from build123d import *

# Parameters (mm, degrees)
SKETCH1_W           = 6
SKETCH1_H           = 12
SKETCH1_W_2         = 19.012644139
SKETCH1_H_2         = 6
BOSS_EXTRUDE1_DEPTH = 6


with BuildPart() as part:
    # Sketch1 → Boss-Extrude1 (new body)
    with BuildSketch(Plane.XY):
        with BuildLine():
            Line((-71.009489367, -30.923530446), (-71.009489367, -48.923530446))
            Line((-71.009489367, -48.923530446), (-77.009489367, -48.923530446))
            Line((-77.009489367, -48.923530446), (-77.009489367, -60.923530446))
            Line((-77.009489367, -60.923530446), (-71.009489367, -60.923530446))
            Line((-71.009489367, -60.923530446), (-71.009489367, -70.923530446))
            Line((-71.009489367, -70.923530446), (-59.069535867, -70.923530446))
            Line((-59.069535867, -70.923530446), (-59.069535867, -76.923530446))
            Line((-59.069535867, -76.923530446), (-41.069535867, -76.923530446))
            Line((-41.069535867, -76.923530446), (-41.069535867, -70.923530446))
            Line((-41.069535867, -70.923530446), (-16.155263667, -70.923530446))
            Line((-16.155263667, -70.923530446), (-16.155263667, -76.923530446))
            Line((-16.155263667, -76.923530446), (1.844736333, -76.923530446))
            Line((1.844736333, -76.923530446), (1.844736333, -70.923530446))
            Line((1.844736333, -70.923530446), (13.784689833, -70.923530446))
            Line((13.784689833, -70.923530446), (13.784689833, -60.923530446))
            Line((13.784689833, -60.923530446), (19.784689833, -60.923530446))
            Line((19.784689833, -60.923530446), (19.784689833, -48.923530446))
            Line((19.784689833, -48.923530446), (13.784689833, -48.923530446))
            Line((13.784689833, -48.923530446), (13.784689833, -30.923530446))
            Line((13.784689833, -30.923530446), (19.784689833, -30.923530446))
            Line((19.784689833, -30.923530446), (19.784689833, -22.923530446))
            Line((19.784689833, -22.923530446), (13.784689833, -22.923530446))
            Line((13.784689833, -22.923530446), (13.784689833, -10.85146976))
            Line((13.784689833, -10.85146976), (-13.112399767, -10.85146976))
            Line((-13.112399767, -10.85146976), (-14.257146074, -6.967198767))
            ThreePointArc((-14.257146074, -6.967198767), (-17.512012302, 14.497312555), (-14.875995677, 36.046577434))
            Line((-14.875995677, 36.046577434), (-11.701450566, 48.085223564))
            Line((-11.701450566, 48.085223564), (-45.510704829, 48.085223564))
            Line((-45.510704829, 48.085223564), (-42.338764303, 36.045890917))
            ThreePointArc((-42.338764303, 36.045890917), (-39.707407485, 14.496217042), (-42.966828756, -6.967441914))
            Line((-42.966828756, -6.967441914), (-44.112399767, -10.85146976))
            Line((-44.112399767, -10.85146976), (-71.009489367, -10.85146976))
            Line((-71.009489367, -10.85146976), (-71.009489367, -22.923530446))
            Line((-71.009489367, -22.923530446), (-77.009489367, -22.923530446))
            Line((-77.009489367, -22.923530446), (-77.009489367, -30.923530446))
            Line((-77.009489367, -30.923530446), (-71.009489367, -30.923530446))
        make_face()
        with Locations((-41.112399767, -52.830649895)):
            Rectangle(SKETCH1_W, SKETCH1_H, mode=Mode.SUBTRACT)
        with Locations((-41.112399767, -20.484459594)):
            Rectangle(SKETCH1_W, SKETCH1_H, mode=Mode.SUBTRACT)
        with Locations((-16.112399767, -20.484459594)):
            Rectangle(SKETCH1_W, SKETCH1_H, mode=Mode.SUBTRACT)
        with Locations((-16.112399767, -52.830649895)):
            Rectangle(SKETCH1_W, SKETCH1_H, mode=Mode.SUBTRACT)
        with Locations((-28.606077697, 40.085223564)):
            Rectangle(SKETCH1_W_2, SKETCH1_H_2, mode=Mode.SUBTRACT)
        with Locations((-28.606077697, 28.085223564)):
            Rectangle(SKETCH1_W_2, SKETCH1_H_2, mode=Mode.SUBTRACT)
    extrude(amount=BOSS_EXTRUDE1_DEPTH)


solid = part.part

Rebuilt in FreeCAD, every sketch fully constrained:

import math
import FreeCAD as App
import Part
import Sketcher
Q = App.Units.Quantity

doc = App.newDocument("Part")
body = doc.addObject("PartDesign::Body", "Body")

# Sketch on XY plane
sketch1 = body.newObject("Sketcher::SketchObject", "Sketch")
sketch1.AttachmentSupport = (doc.getObject("XY_Plane"), [""])
sketch1.MapMode = "FlatFace"
sketch1.addGeometry(Part.LineSegment(App.Vector(-71, -30.9, 0), App.Vector(-71, -48.9, 0)), False)
sketch1.addGeometry(Part.LineSegment(App.Vector(-71, -48.9, 0), App.Vector(-77, -48.9, 0)), False)
sketch1.addGeometry(Part.LineSegment(App.Vector(-77, -48.9, 0), App.Vector(-77, -60.9, 0)), False)
sketch1.addGeometry(Part.LineSegment(App.Vector(-77, -60.9, 0), App.Vector(-71, -60.9, 0)), False)
sketch1.addGeometry(Part.LineSegment(App.Vector(-71, -60.9, 0), App.Vector(-71, -70.9, 0)), False)
sketch1.addGeometry(Part.LineSegment(App.Vector(-71, -70.9, 0), App.Vector(-59.1, -70.9, 0)), False)
sketch1.addGeometry(Part.LineSegment(App.Vector(-59.1, -70.9, 0), App.Vector(-59.1, -76.9, 0)), False)
sketch1.addGeometry(Part.LineSegment(App.Vector(-59.1, -76.9, 0), App.Vector(-41.1, -76.9, 0)), False)
sketch1.addGeometry(Part.LineSegment(App.Vector(-41.1, -76.9, 0), App.Vector(-41.1, -70.9, 0)), False)
sketch1.addGeometry(Part.LineSegment(App.Vector(-41.1, -70.9, 0), App.Vector(-16.2, -70.9, 0)), False)
sketch1.addGeometry(Part.LineSegment(App.Vector(-16.2, -70.9, 0), App.Vector(-16.2, -76.9, 0)), False)
sketch1.addGeometry(Part.LineSegment(App.Vector(-16.2, -76.9, 0), App.Vector(1.8, -76.9, 0)), False)
sketch1.addGeometry(Part.LineSegment(App.Vector(1.8, -76.9, 0), App.Vector(1.8, -70.9, 0)), False)
sketch1.addGeometry(Part.LineSegment(App.Vector(1.8, -70.9, 0), App.Vector(13.8, -70.9, 0)), False)
sketch1.addGeometry(Part.LineSegment(App.Vector(13.8, -70.9, 0), App.Vector(13.8, -60.9, 0)), False)
sketch1.addGeometry(Part.LineSegment(App.Vector(13.8, -60.9, 0), App.Vector(19.8, -60.9, 0)), False)
sketch1.addGeometry(Part.LineSegment(App.Vector(19.8, -60.9, 0), App.Vector(19.8, -48.9, 0)), False)
sketch1.addGeometry(Part.LineSegment(App.Vector(19.8, -48.9, 0), App.Vector(13.8, -48.9, 0)), False)
sketch1.addGeometry(Part.LineSegment(App.Vector(13.8, -48.9, 0), App.Vector(13.8, -30.9, 0)), False)
sketch1.addGeometry(Part.LineSegment(App.Vector(13.8, -30.9, 0), App.Vector(19.8, -30.9, 0)), False)
sketch1.addGeometry(Part.LineSegment(App.Vector(19.8, -30.9, 0), App.Vector(19.8, -22.9, 0)), False)
sketch1.addGeometry(Part.LineSegment(App.Vector(19.8, -22.9, 0), App.Vector(13.8, -22.9, 0)), False)
sketch1.addGeometry(Part.LineSegment(App.Vector(13.8, -22.9, 0), App.Vector(13.8, -10.9, 0)), False)
sketch1.addGeometry(Part.LineSegment(App.Vector(13.8, -10.9, 0), App.Vector(-13.1, -10.9, 0)), False)
sketch1.addGeometry(Part.LineSegment(App.Vector(-13.1, -10.9, 0), App.Vector(-14.3, -7, 0)), False)
sketch1.addGeometry(Part.ArcOfCircle(Part.Circle(App.Vector(62.5, 15.6, 0), App.Vector(0, 0, 1), 80), math.radians(165), math.radians(196)), False)
sketch1.addGeometry(Part.LineSegment(App.Vector(-14.9, 36, 0), App.Vector(-11.7, 48.1, 0)), False)
sketch1.addGeometry(Part.LineSegment(App.Vector(-11.7, 48.1, 0), App.Vector(-45.5, 48.1, 0)), False)
sketch1.addGeometry(Part.LineSegment(App.Vector(-45.5, 48.1, 0), App.Vector(-42.3, 36, 0)), False)
sketch1.addGeometry(Part.ArcOfCircle(Part.Circle(App.Vector(-119.7, 15.7, 0), App.Vector(0, 0, 1), 80), math.radians(-16), math.radians(15)), False)
sketch1.addGeometry(Part.LineSegment(App.Vector(-43, -7, 0), App.Vector(-44.1, -10.9, 0)), False)
sketch1.addGeometry(Part.LineSegment(App.Vector(-44.1, -10.9, 0), App.Vector(-71, -10.9, 0)), False)
sketch1.addGeometry(Part.LineSegment(App.Vector(-71, -10.9, 0), App.Vector(-71, -22.9, 0)), False)
sketch1.addGeometry(Part.LineSegment(App.Vector(-71, -22.9, 0), App.Vector(-77, -22.9, 0)), False)
sketch1.addGeometry(Part.LineSegment(App.Vector(-77, -22.9, 0), App.Vector(-77, -30.9, 0)), False)
sketch1.addGeometry(Part.LineSegment(App.Vector(-77, -30.9, 0), App.Vector(-71, -30.9, 0)), False)
sketch1.addGeometry(Part.LineSegment(App.Vector(-38.1, -58.8, 0), App.Vector(-44.1, -58.8, 0)), False)
sketch1.addGeometry(Part.LineSegment(App.Vector(-44.1, -58.8, 0), App.Vector(-44.1, -46.8, 0)), False)
sketch1.addGeometry(Part.LineSegment(App.Vector(-44.1, -46.8, 0), App.Vector(-38.1, -46.8, 0)), False)
sketch1.addGeometry(Part.LineSegment(App.Vector(-38.1, -46.8, 0), App.Vector(-38.1, -58.8, 0)), False)
sketch1.addGeometry(Part.LineSegment(App.Vector(-38.1, -26.5, 0), App.Vector(-44.1, -26.5, 0)), False)
sketch1.addGeometry(Part.LineSegment(App.Vector(-44.1, -26.5, 0), App.Vector(-44.1, -14.5, 0)), False)
sketch1.addGeometry(Part.LineSegment(App.Vector(-44.1, -14.5, 0), App.Vector(-38.1, -14.5, 0)), False)
sketch1.addGeometry(Part.LineSegment(App.Vector(-38.1, -14.5, 0), App.Vector(-38.1, -26.5, 0)), False)
sketch1.addGeometry(Part.LineSegment(App.Vector(-13.1, -58.8, 0), App.Vector(-19.1, -58.8, 0)), False)
sketch1.addGeometry(Part.LineSegment(App.Vector(-19.1, -58.8, 0), App.Vector(-19.1, -46.8, 0)), False)
sketch1.addGeometry(Part.LineSegment(App.Vector(-19.1, -46.8, 0), App.Vector(-13.1, -46.8, 0)), False)
sketch1.addGeometry(Part.LineSegment(App.Vector(-13.1, -46.8, 0), App.Vector(-13.1, -58.8, 0)), False)
sketch1.addGeometry(Part.LineSegment(App.Vector(-13.1, -26.5, 0), App.Vector(-19.1, -26.5, 0)), False)
sketch1.addGeometry(Part.LineSegment(App.Vector(-19.1, -26.5, 0), App.Vector(-19.1, -14.5, 0)), False)
sketch1.addGeometry(Part.LineSegment(App.Vector(-19.1, -14.5, 0), App.Vector(-13.1, -14.5, 0)), False)
sketch1.addGeometry(Part.LineSegment(App.Vector(-13.1, -14.5, 0), App.Vector(-13.1, -26.5, 0)), False)
sketch1.addGeometry(Part.LineSegment(App.Vector(-19.1, 25.1, 0), App.Vector(-38.1, 25.1, 0)), False)
sketch1.addGeometry(Part.LineSegment(App.Vector(-38.1, 25.1, 0), App.Vector(-38.1, 31.1, 0)), False)
sketch1.addGeometry(Part.LineSegment(App.Vector(-38.1, 31.1, 0), App.Vector(-19.1, 31.1, 0)), False)
sketch1.addGeometry(Part.LineSegment(App.Vector(-19.1, 31.1, 0), App.Vector(-19.1, 25.1, 0)), False)
sketch1.addGeometry(Part.LineSegment(App.Vector(-19.1, 37.1, 0), App.Vector(-38.1, 37.1, 0)), False)
sketch1.addGeometry(Part.LineSegment(App.Vector(-38.1, 37.1, 0), App.Vector(-38.1, 43.1, 0)), False)
sketch1.addGeometry(Part.LineSegment(App.Vector(-38.1, 43.1, 0), App.Vector(-19.1, 43.1, 0)), False)
sketch1.addGeometry(Part.LineSegment(App.Vector(-19.1, 43.1, 0), App.Vector(-19.1, 37.1, 0)), False)
sketch1.addConstraint(Sketcher.Constraint("Coincident", 0, 2, 1, 1))
sketch1.addConstraint(Sketcher.Constraint("Coincident", 1, 2, 2, 1))
sketch1.addConstraint(Sketcher.Constraint("Coincident", 2, 2, 3, 1))
sketch1.addConstraint(Sketcher.Constraint("Coincident", 3, 2, 4, 1))
sketch1.addConstraint(Sketcher.Constraint("Coincident", 4, 2, 5, 1))
sketch1.addConstraint(Sketcher.Constraint("Coincident", 5, 2, 6, 1))
sketch1.addConstraint(Sketcher.Constraint("Coincident", 6, 2, 7, 1))
sketch1.addConstraint(Sketcher.Constraint("Coincident", 7, 2, 8, 1))
sketch1.addConstraint(Sketcher.Constraint("Coincident", 8, 2, 9, 1))
sketch1.addConstraint(Sketcher.Constraint("Coincident", 9, 2, 10, 1))
sketch1.addConstraint(Sketcher.Constraint("Coincident", 10, 2, 11, 1))
sketch1.addConstraint(Sketcher.Constraint("Coincident", 11, 2, 12, 1))
sketch1.addConstraint(Sketcher.Constraint("Coincident", 12, 2, 13, 1))
sketch1.addConstraint(Sketcher.Constraint("Coincident", 13, 2, 14, 1))
sketch1.addConstraint(Sketcher.Constraint("Coincident", 14, 2, 15, 1))
sketch1.addConstraint(Sketcher.Constraint("Coincident", 15, 2, 16, 1))
sketch1.addConstraint(Sketcher.Constraint("Coincident", 16, 2, 17, 1))
sketch1.addConstraint(Sketcher.Constraint("Coincident", 17, 2, 18, 1))
sketch1.addConstraint(Sketcher.Constraint("Coincident", 18, 2, 19, 1))
sketch1.addConstraint(Sketcher.Constraint("Coincident", 19, 2, 20, 1))
sketch1.addConstraint(Sketcher.Constraint("Coincident", 20, 2, 21, 1))
sketch1.addConstraint(Sketcher.Constraint("Coincident", 21, 2, 22, 1))
sketch1.addConstraint(Sketcher.Constraint("Coincident", 22, 2, 23, 1))
sketch1.addConstraint(Sketcher.Constraint("Coincident", 23, 2, 24, 1))
sketch1.addConstraint(Sketcher.Constraint("Tangent", 24, 2, 25, 2))
sketch1.addConstraint(Sketcher.Constraint("Tangent", 25, 1, 26, 1))
sketch1.addConstraint(Sketcher.Constraint("Coincident", 26, 2, 27, 1))
sketch1.addConstraint(Sketcher.Constraint("Coincident", 27, 2, 28, 1))
sketch1.addConstraint(Sketcher.Constraint("Tangent", 28, 2, 29, 2))
sketch1.addConstraint(Sketcher.Constraint("Tangent", 29, 1, 30, 1))
sketch1.addConstraint(Sketcher.Constraint("Coincident", 30, 2, 31, 1))
sketch1.addConstraint(Sketcher.Constraint("Coincident", 31, 2, 32, 1))
sketch1.addConstraint(Sketcher.Constraint("Coincident", 32, 2, 33, 1))
sketch1.addConstraint(Sketcher.Constraint("Coincident", 33, 2, 34, 1))
sketch1.addConstraint(Sketcher.Constraint("Coincident", 34, 2, 35, 1))
sketch1.addConstraint(Sketcher.Constraint("Coincident", 35, 2, 0, 1))
sketch1.addConstraint(Sketcher.Constraint("Coincident", 36, 2, 37, 1))
sketch1.addConstraint(Sketcher.Constraint("Coincident", 37, 2, 38, 1))
sketch1.addConstraint(Sketcher.Constraint("Coincident", 38, 2, 39, 1))
sketch1.addConstraint(Sketcher.Constraint("Coincident", 39, 2, 36, 1))
sketch1.addConstraint(Sketcher.Constraint("Coincident", 40, 2, 41, 1))
sketch1.addConstraint(Sketcher.Constraint("Coincident", 41, 2, 42, 1))
sketch1.addConstraint(Sketcher.Constraint("Coincident", 42, 2, 43, 1))
sketch1.addConstraint(Sketcher.Constraint("Coincident", 43, 2, 40, 1))
sketch1.addConstraint(Sketcher.Constraint("Coincident", 44, 2, 45, 1))
sketch1.addConstraint(Sketcher.Constraint("Coincident", 45, 2, 46, 1))
sketch1.addConstraint(Sketcher.Constraint("Coincident", 46, 2, 47, 1))
sketch1.addConstraint(Sketcher.Constraint("Coincident", 47, 2, 44, 1))
sketch1.addConstraint(Sketcher.Constraint("Coincident", 48, 2, 49, 1))
sketch1.addConstraint(Sketcher.Constraint("Coincident", 49, 2, 50, 1))
sketch1.addConstraint(Sketcher.Constraint("Coincident", 50, 2, 51, 1))
sketch1.addConstraint(Sketcher.Constraint("Coincident", 51, 2, 48, 1))
sketch1.addConstraint(Sketcher.Constraint("Coincident", 52, 2, 53, 1))
sketch1.addConstraint(Sketcher.Constraint("Coincident", 53, 2, 54, 1))
sketch1.addConstraint(Sketcher.Constraint("Coincident", 54, 2, 55, 1))
sketch1.addConstraint(Sketcher.Constraint("Coincident", 55, 2, 52, 1))
sketch1.addConstraint(Sketcher.Constraint("Coincident", 56, 2, 57, 1))
sketch1.addConstraint(Sketcher.Constraint("Coincident", 57, 2, 58, 1))
sketch1.addConstraint(Sketcher.Constraint("Coincident", 58, 2, 59, 1))
sketch1.addConstraint(Sketcher.Constraint("Coincident", 59, 2, 56, 1))
sketch1.addConstraint(Sketcher.Constraint("Vertical", 0))
sketch1.addConstraint(Sketcher.Constraint("Horizontal", 1))
sketch1.addConstraint(Sketcher.Constraint("Vertical", 2))
sketch1.addConstraint(Sketcher.Constraint("Horizontal", 3))
sketch1.addConstraint(Sketcher.Constraint("Vertical", 4))
sketch1.addConstraint(Sketcher.Constraint("Horizontal", 5))
sketch1.addConstraint(Sketcher.Constraint("Vertical", 6))
sketch1.addConstraint(Sketcher.Constraint("Horizontal", 7))
sketch1.addConstraint(Sketcher.Constraint("Vertical", 8))
sketch1.addConstraint(Sketcher.Constraint("Horizontal", 9))
sketch1.addConstraint(Sketcher.Constraint("Vertical", 10))
sketch1.addConstraint(Sketcher.Constraint("Horizontal", 11))
sketch1.addConstraint(Sketcher.Constraint("Vertical", 12))
sketch1.addConstraint(Sketcher.Constraint("Horizontal", 13))
sketch1.addConstraint(Sketcher.Constraint("Vertical", 14))
sketch1.addConstraint(Sketcher.Constraint("Horizontal", 15))
sketch1.addConstraint(Sketcher.Constraint("Vertical", 16))
sketch1.addConstraint(Sketcher.Constraint("Horizontal", 17))
sketch1.addConstraint(Sketcher.Constraint("Vertical", 18))
sketch1.addConstraint(Sketcher.Constraint("Horizontal", 19))
sketch1.addConstraint(Sketcher.Constraint("Vertical", 20))
sketch1.addConstraint(Sketcher.Constraint("Horizontal", 21))
sketch1.addConstraint(Sketcher.Constraint("Vertical", 22))
sketch1.addConstraint(Sketcher.Constraint("Horizontal", 23))
sketch1.addConstraint(Sketcher.Constraint("Horizontal", 27))
sketch1.addConstraint(Sketcher.Constraint("Horizontal", 31))
sketch1.addConstraint(Sketcher.Constraint("Vertical", 32))
sketch1.addConstraint(Sketcher.Constraint("Horizontal", 33))
sketch1.addConstraint(Sketcher.Constraint("Vertical", 34))
sketch1.addConstraint(Sketcher.Constraint("Horizontal", 35))
sketch1.addConstraint(Sketcher.Constraint("Horizontal", 36))
sketch1.addConstraint(Sketcher.Constraint("Vertical", 37))
sketch1.addConstraint(Sketcher.Constraint("Horizontal", 38))
sketch1.addConstraint(Sketcher.Constraint("Vertical", 39))
sketch1.addConstraint(Sketcher.Constraint("Horizontal", 40))
sketch1.addConstraint(Sketcher.Constraint("Vertical", 41))
sketch1.addConstraint(Sketcher.Constraint("Horizontal", 42))
sketch1.addConstraint(Sketcher.Constraint("Vertical", 43))
sketch1.addConstraint(Sketcher.Constraint("Horizontal", 44))
sketch1.addConstraint(Sketcher.Constraint("Vertical", 45))
sketch1.addConstraint(Sketcher.Constraint("Horizontal", 46))
sketch1.addConstraint(Sketcher.Constraint("Vertical", 47))
sketch1.addConstraint(Sketcher.Constraint("Horizontal", 48))
sketch1.addConstraint(Sketcher.Constraint("Vertical", 49))
sketch1.addConstraint(Sketcher.Constraint("Horizontal", 50))
sketch1.addConstraint(Sketcher.Constraint("Vertical", 51))
sketch1.addConstraint(Sketcher.Constraint("Horizontal", 52))
sketch1.addConstraint(Sketcher.Constraint("Vertical", 53))
sketch1.addConstraint(Sketcher.Constraint("Horizontal", 54))
sketch1.addConstraint(Sketcher.Constraint("Vertical", 55))
sketch1.addConstraint(Sketcher.Constraint("Horizontal", 56))
sketch1.addConstraint(Sketcher.Constraint("Vertical", 57))
sketch1.addConstraint(Sketcher.Constraint("Horizontal", 58))
sketch1.addConstraint(Sketcher.Constraint("Vertical", 59))
sketch1.addConstraint(Sketcher.Constraint("Equal", 25, 29))
sketch1.addConstraint(Sketcher.Constraint("Horizontal", 5, 2, 8, 2))
sketch1.addConstraint(Sketcher.Constraint("Horizontal", 7, 2, 10, 2))
sketch1.addConstraint(Sketcher.Constraint("Horizontal", 9, 2, 12, 2))
sketch1.addConstraint(Sketcher.Constraint("Horizontal", 3, 2, 14, 2))
sketch1.addConstraint(Sketcher.Constraint("Horizontal", 1, 2, 16, 2))
sketch1.addConstraint(Sketcher.Constraint("Horizontal", 23, 2, 30, 2))
sketch1.addConstraint(Sketcher.Constraint("Horizontal", 21, 2, 32, 2))
sketch1.addConstraint(Sketcher.Constraint("Horizontal", 19, 2, 34, 2))
sketch1.addConstraint(Sketcher.Constraint("Horizontal", 39, 2, 44, 2))
sketch1.addConstraint(Sketcher.Constraint("Horizontal", 38, 2, 45, 2))
sketch1.addConstraint(Sketcher.Constraint("Horizontal", 43, 2, 48, 2))
sketch1.addConstraint(Sketcher.Constraint("Horizontal", 42, 2, 49, 2))
sketch1.addConstraint(Sketcher.Constraint("Vertical", 0, 2, 3, 2))
sketch1.addConstraint(Sketcher.Constraint("Vertical", 14, 2, 17, 2))
sketch1.addConstraint(Sketcher.Constraint("Vertical", 16, 2, 19, 2))
sketch1.addConstraint(Sketcher.Constraint("Vertical", 18, 2, 21, 2))
sketch1.addConstraint(Sketcher.Constraint("Vertical", 4, 2, 31, 2))
sketch1.addConstraint(Sketcher.Constraint("Vertical", 2, 2, 33, 2))
sketch1.addConstraint(Sketcher.Constraint("Vertical", 30, 2, 36, 2))
sketch1.addConstraint(Sketcher.Constraint("Vertical", 37, 2, 40, 2))
sketch1.addConstraint(Sketcher.Constraint("Vertical", 39, 2, 42, 2))
sketch1.addConstraint(Sketcher.Constraint("Vertical", 23, 2, 46, 2))
sketch1.addConstraint(Sketcher.Constraint("Vertical", 45, 2, 48, 2))
sketch1.addConstraint(Sketcher.Constraint("Vertical", 47, 2, 50, 2))
sketch1.addConstraint(Sketcher.Constraint("Vertical", 43, 2, 52, 2))
sketch1.addConstraint(Sketcher.Constraint("Vertical", 53, 2, 56, 2))
sketch1.addConstraint(Sketcher.Constraint("Vertical", 55, 2, 58, 2))
sketch1.addConstraint(Sketcher.Constraint("Equal", 7, 11))
sketch1.addConstraint(Sketcher.Constraint("Equal", 5, 13))
sketch1.addConstraint(Sketcher.Constraint("Equal", 3, 15))
sketch1.addConstraint(Sketcher.Constraint("Equal", 23, 31))
sketch1.addConstraint(Sketcher.Constraint("Equal", 35, 36))
sketch1.addConstraint(Sketcher.Constraint("Equal", 42, 44))
sketch1.addConstraint(Sketcher.Constraint("Equal", 11, 0))
sketch1.addConstraint(Sketcher.Constraint("Equal", 50, 6))
sketch1.addConstraint(Sketcher.Constraint("Equal", 16, 37))
sketch1.addConstraint(Sketcher.Constraint("Equal", 39, 41))
sketch1.addConstraint(Sketcher.Constraint("Equal", 12, 53))
sketch1.addConstraint(Sketcher.Constraint("Equal", 55, 57))
sketch1.addConstraint(Sketcher.Constraint("Equal", 26, 28))
sketch1.addConstraint(Sketcher.Constraint("Equal", 24, 30))
sketch1.addConstraint(Sketcher.Constraint("Radius", 25, 80.0))
sketch1.addConstraint(Sketcher.Constraint("DistanceX", 1, 2, 1, 1, 6.0))
sketch1.addConstraint(Sketcher.Constraint("DistanceX", 7, 1, 7, 2, 18.0))
sketch1.addConstraint(Sketcher.Constraint("DistanceY", 2, 2, 2, 1, 12.0))
sketch1.addConstraint(Sketcher.Constraint("DistanceY", 4, 2, 4, 1, 10.0))
sketch1.addConstraint(Sketcher.Constraint("DistanceY", 20, 1, 20, 2, 8.0))
sketch1.addConstraint(Sketcher.Constraint("Angle", 28, Q("-75.239992 deg")))
sketch1.addConstraint(Sketcher.Constraint("DistanceX", 23, 2, 23, 1, 26.89709))
sketch1.addConstraint(Sketcher.Constraint("DistanceY", 22, 1, 22, 2, 12.072061))
sketch1.addConstraint(Sketcher.Constraint("DistanceX", 23, 2, -1, 1, 13.1124))
sketch1.addConstraint(Sketcher.Constraint("DistanceY", 24, 2, -1, 1, 6.967199))
sketch1.addConstraint(Sketcher.Constraint("DistanceX", 30, 2, -1, 1, 44.1124))
sketch1.addConstraint(Sketcher.Constraint("Distance", 26, 12.45017))
sketch1.addConstraint(Sketcher.Constraint("DistanceX", 5, 1, 5, 2, 11.939954))
sketch1.addConstraint(Sketcher.Constraint("DistanceX", 27, 2, 27, 1, 33.809254))
sketch1.addConstraint(Sketcher.Constraint("DistanceX", 52, 2, 52, 1, 19.012644))
sketch1.addConstraint(Sketcher.Constraint("DistanceX", -1, 1, 25, 3, 62.479709))
sketch1.addConstraint(Sketcher.Constraint("DistanceY", 0, 2, -1, 1, 48.92353))
sketch1.addConstraint(Sketcher.Constraint("DistanceY", 36, 2, -1, 1, 58.83065))
sketch1.addConstraint(Sketcher.Constraint("DistanceY", 40, 2, -1, 1, 26.48446))
sketch1.addConstraint(Sketcher.Constraint("DistanceY", -1, 1, 52, 2, 25.085224))
sketch1.addConstraint(Sketcher.Constraint("DistanceY", -1, 1, 56, 2, 37.085224))
pad1 = body.newObject("PartDesign::Pad", "Pad")
pad1.Profile = sketch1
pad1.Length = 6

doc.recompute()
